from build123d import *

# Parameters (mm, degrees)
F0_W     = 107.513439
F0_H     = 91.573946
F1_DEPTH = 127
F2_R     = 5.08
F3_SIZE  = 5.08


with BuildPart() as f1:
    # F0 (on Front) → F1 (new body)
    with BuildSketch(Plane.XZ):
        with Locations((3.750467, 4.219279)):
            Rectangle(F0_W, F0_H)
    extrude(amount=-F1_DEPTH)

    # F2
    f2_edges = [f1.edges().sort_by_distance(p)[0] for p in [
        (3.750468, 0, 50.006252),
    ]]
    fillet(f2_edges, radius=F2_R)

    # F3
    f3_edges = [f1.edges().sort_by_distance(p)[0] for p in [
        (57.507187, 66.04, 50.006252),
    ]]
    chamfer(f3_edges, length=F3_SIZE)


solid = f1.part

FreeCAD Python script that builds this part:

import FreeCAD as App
import Part
import Sketcher

V = App.Vector
Q = App.Units.Quantity


def edges_at(feature, points):
    """Names of the edges that pass closest to the given points."""
    edges = feature.Shape.Edges
    near = lambda p: min(range(len(edges)), key=lambda i: edges[i].distToShape(Part.Vertex(*p))[0])
    return sorted({f"Edge{near(p) + 1}" for p in points})

doc = App.newDocument("Part")
params = doc.addObject("Spreadsheet::Sheet", "Params")
for row, (alias, value) in enumerate([
    ("pad1_length", "5 in"),
    ("fillet_radius", "0.2 in"),
    ("chamfer_size", "0.2 in"),
], start=1):
    params.set(f"A{row}", alias)
    params.set(f"B{row}", "=" + value)
    params.setAlias(f"B{row}", alias)

body = doc.addObject("PartDesign::Body", "Body")

# Sketch on XZ plane
sketch1 = body.newObject("Sketcher::SketchObject", "Sketch")
sketch1.AttachmentSupport = (doc.getObject("XZ_Plane"), [""])
sketch1.MapMode = "FlatFace"
sketch1.addGeometry(Part.LineSegment(V(-50, 50, 0), V(-50, -42, 0)), False)
sketch1.addGeometry(Part.LineSegment(V(-50, -42, 0), V(58, -42, 0)), False)
sketch1.addGeometry(Part.LineSegment(V(58, -42, 0), V(58, 50, 0)), False)
sketch1.addGeometry(Part.LineSegment(V(58, 50, 0), V(-50, 50, 0)), False)
sketch1.addConstraint(Sketcher.Constraint("Coincident", 0, 2, 1, 1))
sketch1.addConstraint(Sketcher.Constraint("Coincident", 1, 2, 2, 1))
sketch1.addConstraint(Sketcher.Constraint("Coincident", 2, 2, 3, 1))
sketch1.addConstraint(Sketcher.Constraint("Coincident", 3, 2, 0, 1))
sketch1.addConstraint(Sketcher.Constraint("Vertical", 0))
sketch1.addConstraint(Sketcher.Constraint("Horizontal", 1))
sketch1.addConstraint(Sketcher.Constraint("Vertical", 2))
sketch1.addConstraint(Sketcher.Constraint("Horizontal", 3))
sketch1.addConstraint(Sketcher.Constraint("DistanceX", 0, 2, -1, 1, Q("1.9687501 in")))
sketch1.addConstraint(Sketcher.Constraint("DistanceY", -1, 1, 2, 2, Q("1.9687501 in")))
sketch1.addConstraint(Sketcher.Constraint("DistanceX", 1, 1, 1, 2, Q("107.513439 mm")))
sketch1.addConstraint(Sketcher.Constraint("DistanceY", 0, 2, 0, 1, Q("91.573946 mm")))
pad1 = body.newObject("PartDesign::Pad", "Pad")
pad1.Profile = sketch1
pad1.setExpression("Length", "Params.pad1_length")
pad1.Reversed = True
doc.recompute()

fillet = body.newObject("PartDesign::Fillet", "Fillet")
fillet.Base = (pad1, edges_at(pad1, [(3.75, 0, 50.006)]))
fillet.setExpression("Radius", "Params.fillet_radius")
doc.recompute()

chamfer = body.newObject("PartDesign::Chamfer", "Chamfer")
chamfer.Base = (fillet, edges_at(fillet, [(57.507, 66.04, 50.006)]))
chamfer.setExpression("Size", "Params.chamfer_size")

doc.recompute()
